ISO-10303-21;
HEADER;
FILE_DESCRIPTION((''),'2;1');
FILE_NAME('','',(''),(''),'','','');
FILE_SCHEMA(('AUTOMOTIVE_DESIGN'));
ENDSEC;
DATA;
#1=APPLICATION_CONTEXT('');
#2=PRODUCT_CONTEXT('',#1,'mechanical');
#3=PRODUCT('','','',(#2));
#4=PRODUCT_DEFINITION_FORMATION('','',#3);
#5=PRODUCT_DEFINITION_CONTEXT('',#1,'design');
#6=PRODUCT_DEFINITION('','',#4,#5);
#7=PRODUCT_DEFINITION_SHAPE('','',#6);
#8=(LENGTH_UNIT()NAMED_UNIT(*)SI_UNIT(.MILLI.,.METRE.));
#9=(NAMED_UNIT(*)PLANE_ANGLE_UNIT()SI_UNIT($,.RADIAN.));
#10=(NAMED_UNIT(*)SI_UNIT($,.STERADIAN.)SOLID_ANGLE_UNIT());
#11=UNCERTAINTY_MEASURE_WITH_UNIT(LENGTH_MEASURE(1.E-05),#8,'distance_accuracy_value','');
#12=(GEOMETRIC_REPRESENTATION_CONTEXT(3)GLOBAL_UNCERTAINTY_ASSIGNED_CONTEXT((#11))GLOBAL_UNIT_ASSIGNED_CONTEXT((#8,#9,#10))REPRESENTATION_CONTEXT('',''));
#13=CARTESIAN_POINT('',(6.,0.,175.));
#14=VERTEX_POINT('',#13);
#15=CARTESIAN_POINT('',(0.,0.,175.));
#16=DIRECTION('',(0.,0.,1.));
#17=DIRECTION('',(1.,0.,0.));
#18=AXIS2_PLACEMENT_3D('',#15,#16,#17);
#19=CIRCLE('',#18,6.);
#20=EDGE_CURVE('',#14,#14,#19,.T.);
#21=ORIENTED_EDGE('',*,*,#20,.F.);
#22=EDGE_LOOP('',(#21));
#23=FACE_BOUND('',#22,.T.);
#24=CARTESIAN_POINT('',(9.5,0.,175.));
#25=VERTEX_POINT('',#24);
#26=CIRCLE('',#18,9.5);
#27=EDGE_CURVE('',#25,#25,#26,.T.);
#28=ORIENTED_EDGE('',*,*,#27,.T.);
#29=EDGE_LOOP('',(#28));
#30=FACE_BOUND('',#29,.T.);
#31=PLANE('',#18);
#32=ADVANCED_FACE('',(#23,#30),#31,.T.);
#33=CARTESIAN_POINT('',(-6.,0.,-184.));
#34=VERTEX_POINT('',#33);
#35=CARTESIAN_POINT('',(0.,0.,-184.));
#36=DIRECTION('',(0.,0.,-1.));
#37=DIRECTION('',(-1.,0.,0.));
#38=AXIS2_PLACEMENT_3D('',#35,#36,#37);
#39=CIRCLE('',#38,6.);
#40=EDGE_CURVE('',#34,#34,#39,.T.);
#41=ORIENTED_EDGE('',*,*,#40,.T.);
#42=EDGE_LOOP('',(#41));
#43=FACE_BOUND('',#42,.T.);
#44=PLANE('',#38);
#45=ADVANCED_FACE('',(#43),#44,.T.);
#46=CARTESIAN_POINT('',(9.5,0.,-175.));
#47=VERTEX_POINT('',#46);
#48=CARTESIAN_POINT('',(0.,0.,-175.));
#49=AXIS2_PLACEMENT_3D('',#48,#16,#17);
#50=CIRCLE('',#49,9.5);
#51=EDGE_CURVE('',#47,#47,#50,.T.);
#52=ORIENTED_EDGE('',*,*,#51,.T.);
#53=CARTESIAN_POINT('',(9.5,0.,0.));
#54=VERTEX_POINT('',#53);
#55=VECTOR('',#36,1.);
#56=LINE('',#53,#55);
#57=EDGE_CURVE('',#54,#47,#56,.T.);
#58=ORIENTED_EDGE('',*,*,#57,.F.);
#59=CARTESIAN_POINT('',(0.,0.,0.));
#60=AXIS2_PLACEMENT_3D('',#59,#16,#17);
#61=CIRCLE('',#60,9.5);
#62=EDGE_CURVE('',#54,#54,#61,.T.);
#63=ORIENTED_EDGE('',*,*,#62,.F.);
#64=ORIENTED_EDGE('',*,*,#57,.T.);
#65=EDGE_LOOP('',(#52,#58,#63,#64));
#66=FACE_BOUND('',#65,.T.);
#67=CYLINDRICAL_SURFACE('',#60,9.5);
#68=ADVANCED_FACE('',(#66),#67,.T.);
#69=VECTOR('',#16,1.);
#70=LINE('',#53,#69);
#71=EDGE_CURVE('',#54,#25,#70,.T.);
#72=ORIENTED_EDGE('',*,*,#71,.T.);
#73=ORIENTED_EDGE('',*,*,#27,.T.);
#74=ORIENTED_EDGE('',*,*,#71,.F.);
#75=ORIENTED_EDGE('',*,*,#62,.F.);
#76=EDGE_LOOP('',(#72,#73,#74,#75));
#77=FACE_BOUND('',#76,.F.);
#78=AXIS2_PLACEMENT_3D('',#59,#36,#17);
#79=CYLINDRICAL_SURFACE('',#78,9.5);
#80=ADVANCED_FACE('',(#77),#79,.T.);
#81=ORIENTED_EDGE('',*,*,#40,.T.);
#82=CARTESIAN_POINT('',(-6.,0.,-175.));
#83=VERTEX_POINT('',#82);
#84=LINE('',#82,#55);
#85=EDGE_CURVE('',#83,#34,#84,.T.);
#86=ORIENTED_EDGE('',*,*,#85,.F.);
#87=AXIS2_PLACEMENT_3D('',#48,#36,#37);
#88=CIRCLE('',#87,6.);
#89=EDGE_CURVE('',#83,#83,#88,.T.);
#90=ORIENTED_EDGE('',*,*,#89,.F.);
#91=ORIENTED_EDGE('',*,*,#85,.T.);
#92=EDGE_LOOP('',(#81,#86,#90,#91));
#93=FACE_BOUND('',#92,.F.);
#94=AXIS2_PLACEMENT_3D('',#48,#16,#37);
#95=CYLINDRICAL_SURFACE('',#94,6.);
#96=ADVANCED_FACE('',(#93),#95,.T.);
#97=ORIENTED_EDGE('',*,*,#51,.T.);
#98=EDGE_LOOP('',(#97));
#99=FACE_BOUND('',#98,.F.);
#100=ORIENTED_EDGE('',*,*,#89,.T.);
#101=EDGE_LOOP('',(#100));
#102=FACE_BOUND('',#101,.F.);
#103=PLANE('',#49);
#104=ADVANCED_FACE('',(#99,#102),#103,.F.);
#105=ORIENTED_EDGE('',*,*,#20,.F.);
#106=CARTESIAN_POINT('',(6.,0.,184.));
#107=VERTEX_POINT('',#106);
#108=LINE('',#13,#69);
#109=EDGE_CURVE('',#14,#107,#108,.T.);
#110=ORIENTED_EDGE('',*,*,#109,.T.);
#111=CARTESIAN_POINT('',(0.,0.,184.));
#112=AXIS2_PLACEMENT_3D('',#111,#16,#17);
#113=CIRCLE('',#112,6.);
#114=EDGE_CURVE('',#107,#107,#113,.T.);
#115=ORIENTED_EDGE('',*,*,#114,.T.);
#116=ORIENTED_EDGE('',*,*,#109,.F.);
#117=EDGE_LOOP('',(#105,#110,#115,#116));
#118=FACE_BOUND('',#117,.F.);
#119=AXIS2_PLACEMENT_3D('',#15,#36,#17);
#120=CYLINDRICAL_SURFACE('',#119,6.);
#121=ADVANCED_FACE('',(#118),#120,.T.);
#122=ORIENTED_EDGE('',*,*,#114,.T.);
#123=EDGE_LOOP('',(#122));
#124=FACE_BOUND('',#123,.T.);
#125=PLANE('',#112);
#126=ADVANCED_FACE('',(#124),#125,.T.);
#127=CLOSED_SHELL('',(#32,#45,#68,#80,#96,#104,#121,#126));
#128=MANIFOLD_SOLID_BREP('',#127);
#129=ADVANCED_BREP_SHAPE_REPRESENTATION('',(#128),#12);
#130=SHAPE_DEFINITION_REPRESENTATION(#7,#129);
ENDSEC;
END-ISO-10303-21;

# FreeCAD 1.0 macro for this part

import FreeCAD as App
import Part
import Sketcher
Q = App.Units.Quantity

doc = App.newDocument("Part")
body = doc.addObject("PartDesign::Body", "Body")

sketch1 = body.newObject("Sketcher::SketchObject", "Sketch")
sketch1.AttachmentSupport = (doc.getObject("XY_Plane"), [""])
sketch1.MapMode = "FlatFace"
sketch1.addGeometry(Part.Circle(App.Vector(0, 0, 0), App.Vector(0, 0, 1), 10), False)
sketch1.addConstraint(Sketcher.Constraint("Coincident", 0, 3, -1, 1))
sketch1.addConstraint(Sketcher.Constraint("Diameter", 0, Q("19 mm")))
pad1 = body.newObject("PartDesign::Pad", "Pad")
pad1.Profile = sketch1
pad1.Length = 350
pad1.Midplane = True

sketch2 = body.newObject("Sketcher::SketchObject", "Sketch001")
sketch2.AttachmentSupport = (doc.getObject("XY_Plane"), [""])
sketch2.MapMode = "FlatFace"
sketch2.AttachmentOffset = App.Placement(App.Vector(0, 0, 175), App.Rotation())
sketch2.addGeometry(Part.Circle(App.Vector(0, 0, 0), App.Vector(0, 0, 1), 6), False)
sketch2.addConstraint(Sketcher.Constraint("Coincident", 0, 3, -1, 1))
sketch2.addConstraint(Sketcher.Constraint("Diameter", 0, Q("12 mm")))
pad2 = body.newObject("PartDesign::Pad", "Pad001")
pad2.Profile = sketch2
pad2.Length = 9

sketch3 = body.newObject("Sketcher::SketchObject", "Sketch002")
sketch3.AttachmentSupport = (doc.getObject("XY_Plane"), [""])
sketch3.MapMode = "FlatFace"
sketch3.AttachmentOffset = App.Placement(App.Vector(0, 0, -175), App.Rotation())
sketch3.addGeometry(Part.Circle(App.Vector(0, 0, 0), App.Vector(0, 0, 1), 6), False)
sketch3.addConstraint(Sketcher.Constraint("Coincident", 0, 3, -1, 1))
sketch3.addConstraint(Sketcher.Constraint("Diameter", 0, Q("12 mm")))
pad3 = body.newObject("PartDesign::Pad", "Pad002")
pad3.Profile = sketch3
pad3.Length = 9
pad3.Reversed = True

doc.recompute()
